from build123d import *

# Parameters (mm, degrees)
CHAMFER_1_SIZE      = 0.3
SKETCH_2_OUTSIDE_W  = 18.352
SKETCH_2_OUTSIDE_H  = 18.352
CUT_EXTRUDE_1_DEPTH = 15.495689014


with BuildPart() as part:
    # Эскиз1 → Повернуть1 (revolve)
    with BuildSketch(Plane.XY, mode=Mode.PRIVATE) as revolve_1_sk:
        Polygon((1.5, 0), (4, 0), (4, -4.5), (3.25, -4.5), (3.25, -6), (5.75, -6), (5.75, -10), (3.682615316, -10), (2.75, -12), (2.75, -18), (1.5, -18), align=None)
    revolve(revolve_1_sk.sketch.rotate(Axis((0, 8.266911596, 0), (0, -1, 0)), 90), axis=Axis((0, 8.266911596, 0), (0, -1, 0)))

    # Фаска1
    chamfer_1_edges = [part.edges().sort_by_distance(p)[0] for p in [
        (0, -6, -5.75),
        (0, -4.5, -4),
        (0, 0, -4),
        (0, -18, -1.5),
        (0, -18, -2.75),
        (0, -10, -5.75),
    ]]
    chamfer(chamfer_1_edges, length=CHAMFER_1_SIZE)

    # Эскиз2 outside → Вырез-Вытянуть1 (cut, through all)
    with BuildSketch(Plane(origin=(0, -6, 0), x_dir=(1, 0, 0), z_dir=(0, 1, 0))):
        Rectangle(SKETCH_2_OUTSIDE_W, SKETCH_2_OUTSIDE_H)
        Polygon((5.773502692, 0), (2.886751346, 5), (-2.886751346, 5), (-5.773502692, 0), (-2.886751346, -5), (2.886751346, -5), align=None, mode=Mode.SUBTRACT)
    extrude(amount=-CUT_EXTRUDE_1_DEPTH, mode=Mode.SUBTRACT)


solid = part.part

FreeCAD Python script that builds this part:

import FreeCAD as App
import Part
import Sketcher
Q = App.Units.Quantity


def edges_at(feature, points):
    """Names of the edges that pass closest to the given points."""
    edges = feature.Shape.Edges
    near = lambda p: min(range(len(edges)), key=lambda i: edges[i].distToShape(Part.Vertex(*p))[0])
    return sorted({f"Edge{near(p) + 1}" for p in points})

doc = App.newDocument("Part")
body = doc.addObject("PartDesign::Body", "Body")

sketch1 = doc.addObject("Sketcher::SketchObject", "Sketch")
body.addObject(sketch1)
sketch1.AttachmentSupport = (doc.XY_Plane, [""])
sketch1.MapMode = "FlatFace"
sketch1.addGeometry(Part.LineSegment(App.Vector(4, 0, 0), App.Vector(1.5, 0, 0)), False)
sketch1.addGeometry(Part.LineSegment(App.Vector(1.5, 0, 0), App.Vector(1.5, -18, 0)), False)
sketch1.addGeometry(Part.LineSegment(App.Vector(1.5, -18, 0), App.Vector(2.8, -18, 0)), False)
sketch1.addGeometry(Part.LineSegment(App.Vector(2.8, -18, 0), App.Vector(2.8, -12, 0)), False)
sketch1.addGeometry(Part.LineSegment(App.Vector(2.8, -12, 0), App.Vector(3.7, -10, 0)), False)
sketch1.addGeometry(Part.LineSegment(App.Vector(3.7, -10, 0), App.Vector(5.8, -10, 0)), False)
sketch1.addGeometry(Part.LineSegment(App.Vector(5.8, -10, 0), App.Vector(5.8, -6, 0)), False)
sketch1.addGeometry(Part.LineSegment(App.Vector(5.8, -6, 0), App.Vector(3.2, -6, 0)), False)
sketch1.addGeometry(Part.LineSegment(App.Vector(3.2, -6, 0), App.Vector(3.2, -4.5, 0)), False)
sketch1.addGeometry(Part.LineSegment(App.Vector(3.2, -4.5, 0), App.Vector(4, -4.5, 0)), False)
sketch1.addGeometry(Part.LineSegment(App.Vector(4, -4.5, 0), App.Vector(4, 0, 0)), False)
sketch1.addConstraint(Sketcher.Constraint("Coincident", 0, 2, 1, 1))
sketch1.addConstraint(Sketcher.Constraint("Coincident", 1, 2, 2, 1))
sketch1.addConstraint(Sketcher.Constraint("Coincident", 2, 2, 3, 1))
sketch1.addConstraint(Sketcher.Constraint("Coincident", 3, 2, 4, 1))
sketch1.addConstraint(Sketcher.Constraint("Coincident", 4, 2, 5, 1))
sketch1.addConstraint(Sketcher.Constraint("Coincident", 5, 2, 6, 1))
sketch1.addConstraint(Sketcher.Constraint("Coincident", 6, 2, 7, 1))
sketch1.addConstraint(Sketcher.Constraint("Coincident", 7, 2, 8, 1))
sketch1.addConstraint(Sketcher.Constraint("Coincident", 8, 2, 9, 1))
sketch1.addConstraint(Sketcher.Constraint("Coincident", 9, 2, 10, 1))
sketch1.addConstraint(Sketcher.Constraint("Coincident", 10, 2, 0, 1))
sketch1.addConstraint(Sketcher.Constraint("Horizontal", 0))
sketch1.addConstraint(Sketcher.Constraint("Vertical", 1))
sketch1.addConstraint(Sketcher.Constraint("Horizontal", 2))
sketch1.addConstraint(Sketcher.Constraint("Vertical", 3))
sketch1.addConstraint(Sketcher.Constraint("Horizontal", 5))
sketch1.addConstraint(Sketcher.Constraint("Vertical", 6))
sketch1.addConstraint(Sketcher.Constraint("Horizontal", 7))
sketch1.addConstraint(Sketcher.Constraint("Vertical", 8))
sketch1.addConstraint(Sketcher.Constraint("Horizontal", 9))
sketch1.addConstraint(Sketcher.Constraint("Vertical", 10))
sketch1.addConstraint(Sketcher.Constraint("PointOnObject", 0, 2, -1))
sketch1.addConstraint(Sketcher.Constraint("Equal", 0, 7))
sketch1.addConstraint(Sketcher.Constraint("DistanceY", 1, 2, 1, 1, Q("18 mm")))
sketch1.addConstraint(Sketcher.Constraint("DistanceY", 3, 1, 3, 2, Q("6 mm")))
sketch1.addConstraint(Sketcher.Constraint("DistanceY", 6, 1, 6, 2, Q("4 mm")))
sketch1.addConstraint(Sketcher.Constraint("Angle", 4, Q("65 deg")))
sketch1.addConstraint(Sketcher.Constraint("DistanceX", 0, 2, 0, 1, Q("2.5 mm")))
sketch1.addConstraint(Sketcher.Constraint("DistanceY", 8, 1, 8, 2, Q("1.5 mm")))
sketch1.addConstraint(Sketcher.Constraint("DistanceY", 10, 1, 10, 2, Q("4.5 mm")))
sketch1.addConstraint(Sketcher.Constraint("DistanceX", -1, 1, 9, 2, Q("4 mm")))
sketch1.addConstraint(Sketcher.Constraint("DistanceX", 3, 2, 5, 2, Q("3 mm")))
sketch1.addConstraint(Sketcher.Constraint("DistanceX", 2, 1, 2, 2, Q("1.25 mm")))
revolution = doc.addObject("PartDesign::Revolution", "Revolution")
body.addObject(revolution)
revolution.Profile = sketch1
revolution.ReferenceAxis = (sketch1, ["V_Axis"])
revolution.Angle = 360
doc.recompute()

chamfer = doc.addObject("PartDesign::Chamfer", "Chamfer")
body.addObject(chamfer)
chamfer.Base = (revolution, edges_at(revolution, [
    (0, -6, -5.75),
    (0, -4.5, -4),
    (0, 0, -4),
    (0, -18, -1.5),
    (0, -18, -2.75),
    (0, -10, -5.75),
]))
chamfer.Size = 0.3

sketch2 = doc.addObject("Sketcher::SketchObject", "Sketch001")
body.addObject(sketch2)
sketch2.AttachmentSupport = (doc.XZ_Plane, [""])
sketch2.MapMode = "FlatFace"
sketch2.AttachmentOffset = App.Placement(App.Vector(0, 0, 6), App.Rotation())
sketch2.addGeometry(Part.LineSegment(App.Vector(-9, -9, 0), App.Vector(-9, 9, 0)), False)
sketch2.addGeometry(Part.LineSegment(App.Vector(-9, 9, 0), App.Vector(9, 9, 0)), False)
sketch2.addGeometry(Part.LineSegment(App.Vector(9, 9, 0), App.Vector(9, -9, 0)), False)
sketch2.addGeometry(Part.LineSegment(App.Vector(9, -9, 0), App.Vector(-9, -9, 0)), False)
sketch2.addGeometry(Part.LineSegment(App.Vector(3, -5, 0), App.Vector(6, 0, 0)), False)
sketch2.addGeometry(Part.LineSegment(App.Vector(6, 0, 0), App.Vector(3, 5, 0)), False)
sketch2.addGeometry(Part.LineSegment(App.Vector(3, 5, 0), App.Vector(-3, 5, 0)), False)
sketch2.addGeometry(Part.LineSegment(App.Vector(-3, 5, 0), App.Vector(-6, 0, 0)), False)
sketch2.addGeometry(Part.LineSegment(App.Vector(-6, 0, 0), App.Vector(-3, -5, 0)), False)
sketch2.addGeometry(Part.LineSegment(App.Vector(-3, -5, 0), App.Vector(3, -5, 0)), False)
sketch2.addConstraint(Sketcher.Constraint("Coincident", 0, 2, 1, 1))
sketch2.addConstraint(Sketcher.Constraint("Coincident", 1, 2, 2, 1))
sketch2.addConstraint(Sketcher.Constraint("Coincident", 2, 2, 3, 1))
sketch2.addConstraint(Sketcher.Constraint("Coincident", 3, 2, 0, 1))
sketch2.addConstraint(Sketcher.Constraint("Coincident", 4, 2, 5, 1))
sketch2.addConstraint(Sketcher.Constraint("Coincident", 5, 2, 6, 1))
sketch2.addConstraint(Sketcher.Constraint("Coincident", 6, 2, 7, 1))
sketch2.addConstraint(Sketcher.Constraint("Coincident", 7, 2, 8, 1))
sketch2.addConstraint(Sketcher.Constraint("Coincident", 8, 2, 9, 1))
sketch2.addConstraint(Sketcher.Constraint("Coincident", 9, 2, 4, 1))
sketch2.addConstraint(Sketcher.Constraint("Vertical", 0))
sketch2.addConstraint(Sketcher.Constraint("Horizontal", 1))
sketch2.addConstraint(Sketcher.Constraint("Vertical", 2))
sketch2.addConstraint(Sketcher.Constraint("Horizontal", 3))
sketch2.addConstraint(Sketcher.Constraint("Horizontal", 6))
sketch2.addConstraint(Sketcher.Constraint("Horizontal", 9))
sketch2.addConstraint(Sketcher.Constraint("Symmetric", 0, 2, 2, 2, -1, 1))
sketch2.addConstraint(Sketcher.Constraint("Symmetric", 4, 2, 7, 2, -1, 1))
sketch2.addConstraint(Sketcher.Constraint("Symmetric", 5, 2, 8, 2, -1, 1))
sketch2.addConstraint(Sketcher.Constraint("PointOnObject", 4, 2, -1))
sketch2.addConstraint(Sketcher.Constraint("Parallel", 4, 7))
sketch2.addConstraint(Sketcher.Constraint("Vertical", 6, 2, 8, 2))
sketch2.addConstraint(Sketcher.Constraint("Equal", 3, 0))
sketch2.addConstraint(Sketcher.Constraint("Angle", 4, Q("60 deg")))
sketch2.addConstraint(Sketcher.Constraint("DistanceY", -1, 1, 5, 2, Q("5 mm")))
sketch2.addConstraint(Sketcher.Constraint("DistanceX", 1, 1, 1, 2, Q("18.352 mm")))
sketch2.addConstraint(Sketcher.Constraint("DistanceX", 6, 2, 6, 1, Q("5.773503 mm")))
pocket1 = doc.addObject("PartDesign::Pocket", "Pocket")
body.addObject(pocket1)
pocket1.Profile = sketch2
pocket1.Type = "ThroughAll"
pocket1.Reversed = True

doc.recompute()
